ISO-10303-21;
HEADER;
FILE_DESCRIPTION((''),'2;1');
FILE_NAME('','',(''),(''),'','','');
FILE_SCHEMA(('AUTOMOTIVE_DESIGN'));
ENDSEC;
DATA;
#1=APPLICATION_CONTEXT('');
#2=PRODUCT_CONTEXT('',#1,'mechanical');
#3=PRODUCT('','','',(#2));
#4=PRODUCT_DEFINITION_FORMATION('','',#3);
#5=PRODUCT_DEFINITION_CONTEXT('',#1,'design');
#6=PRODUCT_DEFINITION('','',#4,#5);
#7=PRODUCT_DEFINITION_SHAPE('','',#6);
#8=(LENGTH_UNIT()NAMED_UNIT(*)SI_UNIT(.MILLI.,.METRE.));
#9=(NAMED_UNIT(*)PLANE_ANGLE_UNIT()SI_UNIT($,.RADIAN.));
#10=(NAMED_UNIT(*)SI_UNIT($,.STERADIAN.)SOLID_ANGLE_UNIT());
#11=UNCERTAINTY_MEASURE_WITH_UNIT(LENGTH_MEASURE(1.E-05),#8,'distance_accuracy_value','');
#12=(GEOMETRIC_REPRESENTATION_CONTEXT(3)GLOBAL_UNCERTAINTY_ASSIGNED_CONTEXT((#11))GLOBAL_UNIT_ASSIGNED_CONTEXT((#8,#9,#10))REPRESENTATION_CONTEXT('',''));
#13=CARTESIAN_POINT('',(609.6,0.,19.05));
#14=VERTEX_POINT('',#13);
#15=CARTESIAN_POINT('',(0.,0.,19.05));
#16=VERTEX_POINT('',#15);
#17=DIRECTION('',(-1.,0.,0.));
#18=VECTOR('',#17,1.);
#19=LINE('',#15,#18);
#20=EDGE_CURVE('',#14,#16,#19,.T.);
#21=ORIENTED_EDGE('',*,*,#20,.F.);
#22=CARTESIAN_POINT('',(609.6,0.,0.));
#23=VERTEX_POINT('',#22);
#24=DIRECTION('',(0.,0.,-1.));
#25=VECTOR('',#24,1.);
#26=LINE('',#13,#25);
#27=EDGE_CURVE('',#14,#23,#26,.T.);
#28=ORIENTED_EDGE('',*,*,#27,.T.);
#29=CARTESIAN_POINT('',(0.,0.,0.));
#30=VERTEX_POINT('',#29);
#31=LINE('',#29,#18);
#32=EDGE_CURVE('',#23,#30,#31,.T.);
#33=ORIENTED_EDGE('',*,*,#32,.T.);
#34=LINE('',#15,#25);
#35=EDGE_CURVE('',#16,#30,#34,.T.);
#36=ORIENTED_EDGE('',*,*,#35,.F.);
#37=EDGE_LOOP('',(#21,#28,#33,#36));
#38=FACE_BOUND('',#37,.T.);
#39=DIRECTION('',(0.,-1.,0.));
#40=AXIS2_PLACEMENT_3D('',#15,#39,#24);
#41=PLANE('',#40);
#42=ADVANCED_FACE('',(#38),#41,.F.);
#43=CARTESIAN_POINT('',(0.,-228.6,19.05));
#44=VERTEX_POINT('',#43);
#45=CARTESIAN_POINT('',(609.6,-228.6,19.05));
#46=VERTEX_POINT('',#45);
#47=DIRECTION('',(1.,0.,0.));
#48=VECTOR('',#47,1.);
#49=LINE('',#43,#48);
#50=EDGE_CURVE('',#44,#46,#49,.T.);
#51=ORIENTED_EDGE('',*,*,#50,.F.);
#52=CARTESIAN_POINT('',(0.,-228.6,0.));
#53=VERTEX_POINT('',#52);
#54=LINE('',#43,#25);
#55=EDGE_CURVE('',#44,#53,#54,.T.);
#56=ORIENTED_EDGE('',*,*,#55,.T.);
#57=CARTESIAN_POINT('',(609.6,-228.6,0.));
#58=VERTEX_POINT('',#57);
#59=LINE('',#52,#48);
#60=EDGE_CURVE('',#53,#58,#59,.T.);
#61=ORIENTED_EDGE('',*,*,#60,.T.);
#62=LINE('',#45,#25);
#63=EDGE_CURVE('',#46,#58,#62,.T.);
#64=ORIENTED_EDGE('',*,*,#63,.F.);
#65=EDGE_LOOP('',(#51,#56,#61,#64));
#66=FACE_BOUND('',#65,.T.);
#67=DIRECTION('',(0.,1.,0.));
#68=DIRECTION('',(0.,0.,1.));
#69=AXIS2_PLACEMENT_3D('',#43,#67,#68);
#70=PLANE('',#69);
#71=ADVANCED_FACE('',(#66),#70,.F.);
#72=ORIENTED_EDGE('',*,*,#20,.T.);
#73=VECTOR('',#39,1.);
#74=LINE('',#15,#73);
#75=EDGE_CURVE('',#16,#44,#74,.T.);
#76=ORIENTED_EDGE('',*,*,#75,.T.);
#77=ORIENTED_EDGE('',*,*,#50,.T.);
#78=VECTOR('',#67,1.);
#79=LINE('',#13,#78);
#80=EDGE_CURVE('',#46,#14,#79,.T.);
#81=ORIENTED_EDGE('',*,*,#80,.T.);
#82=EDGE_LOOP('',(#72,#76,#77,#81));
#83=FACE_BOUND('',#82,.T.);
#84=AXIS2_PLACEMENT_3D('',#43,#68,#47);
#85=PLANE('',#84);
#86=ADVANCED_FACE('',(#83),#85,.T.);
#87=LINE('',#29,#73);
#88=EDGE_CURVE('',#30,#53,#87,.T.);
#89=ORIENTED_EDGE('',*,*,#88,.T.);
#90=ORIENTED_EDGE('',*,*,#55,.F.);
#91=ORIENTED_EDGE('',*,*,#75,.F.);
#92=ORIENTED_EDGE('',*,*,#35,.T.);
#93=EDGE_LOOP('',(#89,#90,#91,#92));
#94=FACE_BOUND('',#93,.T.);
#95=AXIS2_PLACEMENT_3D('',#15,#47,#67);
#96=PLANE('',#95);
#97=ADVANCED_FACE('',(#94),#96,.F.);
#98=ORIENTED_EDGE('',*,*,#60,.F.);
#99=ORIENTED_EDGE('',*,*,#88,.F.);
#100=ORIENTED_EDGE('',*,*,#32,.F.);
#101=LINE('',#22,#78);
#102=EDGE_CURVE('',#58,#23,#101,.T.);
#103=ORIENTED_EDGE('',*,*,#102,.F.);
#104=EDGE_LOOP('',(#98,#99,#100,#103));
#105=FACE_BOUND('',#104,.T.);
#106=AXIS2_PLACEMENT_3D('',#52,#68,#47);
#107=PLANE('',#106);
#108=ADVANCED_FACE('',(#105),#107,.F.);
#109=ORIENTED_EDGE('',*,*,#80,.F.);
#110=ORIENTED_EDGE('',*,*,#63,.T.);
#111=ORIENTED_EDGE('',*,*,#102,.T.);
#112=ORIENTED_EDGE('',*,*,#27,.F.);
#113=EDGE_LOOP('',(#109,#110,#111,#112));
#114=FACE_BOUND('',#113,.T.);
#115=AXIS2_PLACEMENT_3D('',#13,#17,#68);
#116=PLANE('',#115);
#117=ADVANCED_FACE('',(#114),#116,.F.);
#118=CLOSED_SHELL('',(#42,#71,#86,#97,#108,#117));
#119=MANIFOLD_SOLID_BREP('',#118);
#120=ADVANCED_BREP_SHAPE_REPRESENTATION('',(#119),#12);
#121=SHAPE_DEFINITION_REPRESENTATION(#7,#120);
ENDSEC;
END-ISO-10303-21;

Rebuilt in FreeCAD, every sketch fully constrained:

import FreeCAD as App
import Part
import Sketcher
from FreeCAD import Vector
Q = App.Units.Quantity


def add_polygon(sketch, points):
    """Adds a closed chain of lines whose ends are joined by coincident constraints."""
    first, n = sketch.GeometryCount, len(points)
    for a, b in zip(points, points[1:] + points[:1]):
        sketch.addGeometry(Part.LineSegment(App.Vector(*a, 0), App.Vector(*b, 0)), False)
    for i in range(n):
        sketch.addConstraint(Sketcher.Constraint("Coincident", first + i, 2, first + (i + 1) % n, 1))

doc = App.newDocument("Part")
params = doc.addObject("Spreadsheet::Sheet", "Params")
for row, (alias, value) in enumerate([
    ("sketch1_width", "24 in"),
    ("sketch1_height", "9 in"),
    ("pad1_length", "0.75 in"),
], start=1):
    params.set(f"A{row}", alias)
    params.set(f"B{row}", "=" + value)
    params.setAlias(f"B{row}", alias)

body = doc.addObject("PartDesign::Body", "Body")

sketch1 = body.newObject("Sketcher::SketchObject", "Sketch")
sketch1.AttachmentSupport = (doc.getObject("XY_Plane"), [""])
sketch1.MapMode = "FlatFace"
add_polygon(sketch1, [(0, 0), (0, -228.6), (609.6, -228.6), (609.6, 0)])
sketch1.addConstraint([
    Sketcher.Constraint("Vertical", 0),
    Sketcher.Constraint("Horizontal", 1),
    Sketcher.Constraint("Vertical", 2),
    Sketcher.Constraint("Horizontal", 3),
    Sketcher.Constraint("Coincident", 3, 2, -1, 1),
    Sketcher.Constraint("DistanceX", 1, 1, 1, 2, Q("24 in")),
    Sketcher.Constraint("DistanceY", 0, 2, 0, 1, Q("9 in")),
])
sketch1.setExpression("Constraints[9]", "Params.sketch1_width")
sketch1.setExpression("Constraints[10]", "Params.sketch1_height")
pad1 = body.newObject("PartDesign::Pad", "Pad")
pad1.Profile = sketch1
pad1.setExpression("Length", "Params.pad1_length")

doc.recompute()
